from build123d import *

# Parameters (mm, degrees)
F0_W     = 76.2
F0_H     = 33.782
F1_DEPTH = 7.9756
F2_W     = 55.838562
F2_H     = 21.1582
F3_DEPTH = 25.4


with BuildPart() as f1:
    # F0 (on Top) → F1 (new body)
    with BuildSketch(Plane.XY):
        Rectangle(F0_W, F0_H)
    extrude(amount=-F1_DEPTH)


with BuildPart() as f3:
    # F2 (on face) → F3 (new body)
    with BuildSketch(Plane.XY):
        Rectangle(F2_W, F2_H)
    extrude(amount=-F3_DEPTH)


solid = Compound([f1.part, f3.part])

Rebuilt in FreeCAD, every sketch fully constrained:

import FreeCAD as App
import Part
import Sketcher

V = App.Vector
Q = App.Units.Quantity


def add_polygon(sketch, points):
    """Adds a closed chain of lines whose ends are joined by coincident constraints."""
    first, n = sketch.GeometryCount, len(points)
    for a, b in zip(points, points[1:] + points[:1]):
        sketch.addGeometry(Part.LineSegment(App.Vector(*a, 0), App.Vector(*b, 0)), False)
    for i in range(n):
        sketch.addConstraint(Sketcher.Constraint("Coincident", first + i, 2, first + (i + 1) % n, 1))

doc = App.newDocument("Part")
body = doc.addObject("PartDesign::Body", "Body")

sketch1 = doc.addObject("Sketcher::SketchObject", "Sketch")
body.addObject(sketch1)
sketch1.AttachmentSupport = (doc.XY_Plane, [""])
sketch1.MapMode = "FlatFace"
add_polygon(sketch1, [(-38, 17), (-38, -17), (38, -17), (38, 17)])
sketch1.addConstraint(Sketcher.Constraint("Vertical", 0))
sketch1.addConstraint(Sketcher.Constraint("Horizontal", 1))
sketch1.addConstraint(Sketcher.Constraint("Vertical", 2))
sketch1.addConstraint(Sketcher.Constraint("Horizontal", 3))
sketch1.addConstraint(Sketcher.Constraint("Symmetric", 0, 2, 2, 2, -1, 1))
sketch1.addConstraint(Sketcher.Constraint("DistanceX", 1, 1, 1, 2, Q("3 in")))
sketch1.addConstraint(Sketcher.Constraint("DistanceY", 0, 2, 0, 1, Q("1.33 in")))
pad1 = doc.addObject("PartDesign::Pad", "Pad")
body.addObject(pad1)
pad1.Profile = sketch1
pad1.Length = Q("0.314 in")
pad1.Reversed = True
body2 = doc.addObject("PartDesign::Body", "Body001")

sketch2 = doc.addObject("Sketcher::SketchObject", "Sketch001")
body2.addObject(sketch2)
sketch2.AttachmentSupport = (doc.getObject("XY_Plane001"), [""])
sketch2.MapMode = "FlatFace"
add_polygon(sketch2, [(-28, 11), (-28, -11), (28, -11), (28, 11)])
sketch2.addConstraint(Sketcher.Constraint("Vertical", 0))
sketch2.addConstraint(Sketcher.Constraint("Horizontal", 1))
sketch2.addConstraint(Sketcher.Constraint("Vertical", 2))
sketch2.addConstraint(Sketcher.Constraint("Horizontal", 3))
sketch2.addConstraint(Sketcher.Constraint("Symmetric", 0, 2, 2, 2, -1, 1))
sketch2.addConstraint(Sketcher.Constraint("DistanceY", 0, 2, 0, 1, Q("0.833 in")))
sketch2.addConstraint(Sketcher.Constraint("DistanceX", 1, 1, 1, 2, Q("55.838562 mm")))
pad2 = doc.addObject("PartDesign::Pad", "Pad001")
body2.addObject(pad2)
pad2.Profile = sketch2
pad2.Length = Q("1 in")
pad2.Reversed = True

doc.recompute()
